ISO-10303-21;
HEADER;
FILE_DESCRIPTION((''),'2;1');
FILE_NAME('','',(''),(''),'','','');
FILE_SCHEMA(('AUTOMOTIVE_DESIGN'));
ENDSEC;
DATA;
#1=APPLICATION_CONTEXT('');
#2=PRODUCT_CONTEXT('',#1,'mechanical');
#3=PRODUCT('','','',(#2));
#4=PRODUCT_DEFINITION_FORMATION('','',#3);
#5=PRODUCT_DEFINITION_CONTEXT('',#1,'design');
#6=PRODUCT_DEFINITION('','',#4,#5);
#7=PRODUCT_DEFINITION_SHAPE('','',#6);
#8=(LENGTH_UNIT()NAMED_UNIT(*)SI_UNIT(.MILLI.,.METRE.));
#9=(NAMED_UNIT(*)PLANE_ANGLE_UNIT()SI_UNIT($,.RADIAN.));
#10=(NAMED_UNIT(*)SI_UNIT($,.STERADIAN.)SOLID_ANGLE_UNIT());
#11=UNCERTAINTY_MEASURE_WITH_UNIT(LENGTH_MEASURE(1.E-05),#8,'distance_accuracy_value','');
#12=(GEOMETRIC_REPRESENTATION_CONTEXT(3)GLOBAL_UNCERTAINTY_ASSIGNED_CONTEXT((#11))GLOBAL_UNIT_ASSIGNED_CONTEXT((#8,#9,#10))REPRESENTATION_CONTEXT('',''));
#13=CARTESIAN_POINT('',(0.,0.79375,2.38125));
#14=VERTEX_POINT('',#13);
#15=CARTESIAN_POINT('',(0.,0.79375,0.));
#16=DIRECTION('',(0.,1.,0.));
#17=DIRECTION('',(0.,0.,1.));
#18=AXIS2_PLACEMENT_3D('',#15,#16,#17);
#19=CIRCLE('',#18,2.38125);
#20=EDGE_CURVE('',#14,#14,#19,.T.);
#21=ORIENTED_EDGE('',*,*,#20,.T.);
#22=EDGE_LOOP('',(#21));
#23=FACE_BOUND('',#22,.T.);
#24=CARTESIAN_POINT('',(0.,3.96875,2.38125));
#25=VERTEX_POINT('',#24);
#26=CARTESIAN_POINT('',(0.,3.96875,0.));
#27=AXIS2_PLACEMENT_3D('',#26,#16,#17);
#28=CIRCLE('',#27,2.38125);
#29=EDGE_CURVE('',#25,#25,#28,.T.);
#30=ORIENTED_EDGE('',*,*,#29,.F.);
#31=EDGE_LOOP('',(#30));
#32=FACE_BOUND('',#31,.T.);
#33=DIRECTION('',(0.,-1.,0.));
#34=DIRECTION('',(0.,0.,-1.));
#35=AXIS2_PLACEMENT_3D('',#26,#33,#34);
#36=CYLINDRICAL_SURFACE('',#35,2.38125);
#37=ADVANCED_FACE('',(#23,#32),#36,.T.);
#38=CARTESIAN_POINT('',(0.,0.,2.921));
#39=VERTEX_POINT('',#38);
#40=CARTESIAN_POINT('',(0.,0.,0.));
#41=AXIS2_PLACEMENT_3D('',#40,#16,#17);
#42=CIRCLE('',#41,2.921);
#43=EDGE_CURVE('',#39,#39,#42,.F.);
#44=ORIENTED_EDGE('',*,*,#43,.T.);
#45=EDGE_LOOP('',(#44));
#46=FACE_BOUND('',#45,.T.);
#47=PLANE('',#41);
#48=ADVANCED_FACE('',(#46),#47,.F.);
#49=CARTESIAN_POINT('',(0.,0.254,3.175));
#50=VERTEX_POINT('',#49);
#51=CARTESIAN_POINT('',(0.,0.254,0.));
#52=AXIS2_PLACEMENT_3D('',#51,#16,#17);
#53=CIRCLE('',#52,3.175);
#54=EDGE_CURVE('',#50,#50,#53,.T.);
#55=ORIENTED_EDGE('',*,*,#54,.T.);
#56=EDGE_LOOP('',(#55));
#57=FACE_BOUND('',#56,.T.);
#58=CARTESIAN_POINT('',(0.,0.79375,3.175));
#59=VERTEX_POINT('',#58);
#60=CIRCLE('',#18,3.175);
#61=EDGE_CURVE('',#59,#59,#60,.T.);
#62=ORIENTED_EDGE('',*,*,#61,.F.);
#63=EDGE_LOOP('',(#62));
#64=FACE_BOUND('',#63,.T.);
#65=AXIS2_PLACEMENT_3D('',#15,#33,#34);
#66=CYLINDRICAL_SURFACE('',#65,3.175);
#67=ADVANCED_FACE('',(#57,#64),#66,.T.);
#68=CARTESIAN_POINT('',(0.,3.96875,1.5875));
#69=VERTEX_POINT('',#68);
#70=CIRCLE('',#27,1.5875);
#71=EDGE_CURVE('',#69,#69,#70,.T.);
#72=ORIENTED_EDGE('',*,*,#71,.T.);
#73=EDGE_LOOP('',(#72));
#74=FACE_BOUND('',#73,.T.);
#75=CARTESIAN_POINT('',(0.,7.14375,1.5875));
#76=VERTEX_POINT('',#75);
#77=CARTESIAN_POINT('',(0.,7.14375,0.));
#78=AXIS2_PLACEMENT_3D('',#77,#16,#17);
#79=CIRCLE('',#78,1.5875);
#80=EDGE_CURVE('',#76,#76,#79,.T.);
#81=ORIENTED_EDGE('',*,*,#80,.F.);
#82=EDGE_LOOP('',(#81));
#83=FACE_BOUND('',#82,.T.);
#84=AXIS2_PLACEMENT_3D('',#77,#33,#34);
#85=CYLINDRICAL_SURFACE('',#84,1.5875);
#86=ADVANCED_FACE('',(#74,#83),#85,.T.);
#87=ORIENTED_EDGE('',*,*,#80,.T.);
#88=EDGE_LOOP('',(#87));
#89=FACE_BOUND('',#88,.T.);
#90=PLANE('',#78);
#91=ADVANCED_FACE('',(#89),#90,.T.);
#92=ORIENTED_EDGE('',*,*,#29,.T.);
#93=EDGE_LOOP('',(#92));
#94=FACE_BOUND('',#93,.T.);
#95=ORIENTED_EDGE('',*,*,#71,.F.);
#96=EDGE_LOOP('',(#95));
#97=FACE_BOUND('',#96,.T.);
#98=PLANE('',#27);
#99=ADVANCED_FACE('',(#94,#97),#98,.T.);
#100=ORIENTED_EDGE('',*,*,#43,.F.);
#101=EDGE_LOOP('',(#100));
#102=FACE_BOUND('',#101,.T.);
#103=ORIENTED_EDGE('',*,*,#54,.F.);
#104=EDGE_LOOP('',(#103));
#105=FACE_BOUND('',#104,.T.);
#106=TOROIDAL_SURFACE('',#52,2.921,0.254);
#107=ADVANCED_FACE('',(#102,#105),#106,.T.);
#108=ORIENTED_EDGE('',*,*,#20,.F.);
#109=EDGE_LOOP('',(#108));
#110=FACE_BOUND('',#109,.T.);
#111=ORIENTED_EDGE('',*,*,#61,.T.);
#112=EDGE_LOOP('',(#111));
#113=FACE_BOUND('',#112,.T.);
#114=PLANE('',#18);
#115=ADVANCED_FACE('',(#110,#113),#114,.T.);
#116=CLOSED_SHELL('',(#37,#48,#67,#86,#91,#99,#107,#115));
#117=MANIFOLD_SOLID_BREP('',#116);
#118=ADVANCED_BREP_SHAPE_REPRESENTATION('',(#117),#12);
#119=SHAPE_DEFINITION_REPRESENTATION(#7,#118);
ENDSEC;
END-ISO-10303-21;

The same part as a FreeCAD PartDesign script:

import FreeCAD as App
import Part
import Sketcher

V = App.Vector
Q = App.Units.Quantity


def edges_at(feature, points):
    """Names of the edges that pass closest to the given points."""
    edges = feature.Shape.Edges
    near = lambda p: min(range(len(edges)), key=lambda i: edges[i].distToShape(Part.Vertex(*p))[0])
    return sorted({f"Edge{near(p) + 1}" for p in points})

doc = App.newDocument("Part")
body = doc.addObject("PartDesign::Body", "Body")

# Sketch on XZ plane
sketch1 = doc.addObject("Sketcher::SketchObject", "Sketch")
body.addObject(sketch1)
sketch1.AttachmentSupport = (doc.XZ_Plane, [""])
sketch1.MapMode = "FlatFace"
sketch1.addGeometry(Part.Circle(V(0, 0, 0), V(0, 0, 1), 3.175), False)
sketch1.addConstraint([
    Sketcher.Constraint("Coincident", 0, 3, -1, 1),
    Sketcher.Constraint("Diameter", 0, Q("0.25 in")),
])
pad1 = doc.addObject("PartDesign::Pad", "Pad")
body.addObject(pad1)
pad1.Profile = sketch1
pad1.Length = Q("0.03125 in")
pad1.Reversed = True

# Sketch on XZ plane
sketch2 = doc.addObject("Sketcher::SketchObject", "Sketch001")
body.addObject(sketch2)
sketch2.AttachmentSupport = (doc.XZ_Plane, [""])
sketch2.MapMode = "FlatFace"
sketch2.AttachmentOffset = App.Placement(V(0, 0, -0.03125 * 25.4), App.Rotation())
sketch2.addGeometry(Part.Circle(V(0, 0, 0), V(0, 0, 1), 2.38125), False)
sketch2.addConstraint([
    Sketcher.Constraint("Coincident", 0, 3, -1, 1),
    Sketcher.Constraint("Diameter", 0, Q("0.1875 in")),
])
pad2 = doc.addObject("PartDesign::Pad", "Pad001")
body.addObject(pad2)
pad2.Profile = sketch2
pad2.Length = Q("0.125 in")
pad2.Reversed = True

# Sketch on XZ plane
sketch3 = doc.addObject("Sketcher::SketchObject", "Sketch002")
body.addObject(sketch3)
sketch3.AttachmentSupport = (doc.XZ_Plane, [""])
sketch3.MapMode = "FlatFace"
sketch3.AttachmentOffset = App.Placement(V(0, 0, -0.15625 * 25.4), App.Rotation())
sketch3.addGeometry(Part.Circle(V(0, 0, 0), V(0, 0, 1), 1.5875), False)
sketch3.addConstraint([
    Sketcher.Constraint("Coincident", 0, 3, -1, 1),
    Sketcher.Constraint("Diameter", 0, Q("0.125 in")),
])
pad3 = doc.addObject("PartDesign::Pad", "Pad002")
body.addObject(pad3)
pad3.Profile = sketch3
pad3.Length = Q("0.125 in")
pad3.Reversed = True
doc.recompute()

fillet = doc.addObject("PartDesign::Fillet", "Fillet")
body.addObject(fillet)
fillet.Base = (pad3, edges_at(pad3, [(0, 0, -3.175)]))
fillet.Radius = Q("0.01 in")

doc.recompute()
